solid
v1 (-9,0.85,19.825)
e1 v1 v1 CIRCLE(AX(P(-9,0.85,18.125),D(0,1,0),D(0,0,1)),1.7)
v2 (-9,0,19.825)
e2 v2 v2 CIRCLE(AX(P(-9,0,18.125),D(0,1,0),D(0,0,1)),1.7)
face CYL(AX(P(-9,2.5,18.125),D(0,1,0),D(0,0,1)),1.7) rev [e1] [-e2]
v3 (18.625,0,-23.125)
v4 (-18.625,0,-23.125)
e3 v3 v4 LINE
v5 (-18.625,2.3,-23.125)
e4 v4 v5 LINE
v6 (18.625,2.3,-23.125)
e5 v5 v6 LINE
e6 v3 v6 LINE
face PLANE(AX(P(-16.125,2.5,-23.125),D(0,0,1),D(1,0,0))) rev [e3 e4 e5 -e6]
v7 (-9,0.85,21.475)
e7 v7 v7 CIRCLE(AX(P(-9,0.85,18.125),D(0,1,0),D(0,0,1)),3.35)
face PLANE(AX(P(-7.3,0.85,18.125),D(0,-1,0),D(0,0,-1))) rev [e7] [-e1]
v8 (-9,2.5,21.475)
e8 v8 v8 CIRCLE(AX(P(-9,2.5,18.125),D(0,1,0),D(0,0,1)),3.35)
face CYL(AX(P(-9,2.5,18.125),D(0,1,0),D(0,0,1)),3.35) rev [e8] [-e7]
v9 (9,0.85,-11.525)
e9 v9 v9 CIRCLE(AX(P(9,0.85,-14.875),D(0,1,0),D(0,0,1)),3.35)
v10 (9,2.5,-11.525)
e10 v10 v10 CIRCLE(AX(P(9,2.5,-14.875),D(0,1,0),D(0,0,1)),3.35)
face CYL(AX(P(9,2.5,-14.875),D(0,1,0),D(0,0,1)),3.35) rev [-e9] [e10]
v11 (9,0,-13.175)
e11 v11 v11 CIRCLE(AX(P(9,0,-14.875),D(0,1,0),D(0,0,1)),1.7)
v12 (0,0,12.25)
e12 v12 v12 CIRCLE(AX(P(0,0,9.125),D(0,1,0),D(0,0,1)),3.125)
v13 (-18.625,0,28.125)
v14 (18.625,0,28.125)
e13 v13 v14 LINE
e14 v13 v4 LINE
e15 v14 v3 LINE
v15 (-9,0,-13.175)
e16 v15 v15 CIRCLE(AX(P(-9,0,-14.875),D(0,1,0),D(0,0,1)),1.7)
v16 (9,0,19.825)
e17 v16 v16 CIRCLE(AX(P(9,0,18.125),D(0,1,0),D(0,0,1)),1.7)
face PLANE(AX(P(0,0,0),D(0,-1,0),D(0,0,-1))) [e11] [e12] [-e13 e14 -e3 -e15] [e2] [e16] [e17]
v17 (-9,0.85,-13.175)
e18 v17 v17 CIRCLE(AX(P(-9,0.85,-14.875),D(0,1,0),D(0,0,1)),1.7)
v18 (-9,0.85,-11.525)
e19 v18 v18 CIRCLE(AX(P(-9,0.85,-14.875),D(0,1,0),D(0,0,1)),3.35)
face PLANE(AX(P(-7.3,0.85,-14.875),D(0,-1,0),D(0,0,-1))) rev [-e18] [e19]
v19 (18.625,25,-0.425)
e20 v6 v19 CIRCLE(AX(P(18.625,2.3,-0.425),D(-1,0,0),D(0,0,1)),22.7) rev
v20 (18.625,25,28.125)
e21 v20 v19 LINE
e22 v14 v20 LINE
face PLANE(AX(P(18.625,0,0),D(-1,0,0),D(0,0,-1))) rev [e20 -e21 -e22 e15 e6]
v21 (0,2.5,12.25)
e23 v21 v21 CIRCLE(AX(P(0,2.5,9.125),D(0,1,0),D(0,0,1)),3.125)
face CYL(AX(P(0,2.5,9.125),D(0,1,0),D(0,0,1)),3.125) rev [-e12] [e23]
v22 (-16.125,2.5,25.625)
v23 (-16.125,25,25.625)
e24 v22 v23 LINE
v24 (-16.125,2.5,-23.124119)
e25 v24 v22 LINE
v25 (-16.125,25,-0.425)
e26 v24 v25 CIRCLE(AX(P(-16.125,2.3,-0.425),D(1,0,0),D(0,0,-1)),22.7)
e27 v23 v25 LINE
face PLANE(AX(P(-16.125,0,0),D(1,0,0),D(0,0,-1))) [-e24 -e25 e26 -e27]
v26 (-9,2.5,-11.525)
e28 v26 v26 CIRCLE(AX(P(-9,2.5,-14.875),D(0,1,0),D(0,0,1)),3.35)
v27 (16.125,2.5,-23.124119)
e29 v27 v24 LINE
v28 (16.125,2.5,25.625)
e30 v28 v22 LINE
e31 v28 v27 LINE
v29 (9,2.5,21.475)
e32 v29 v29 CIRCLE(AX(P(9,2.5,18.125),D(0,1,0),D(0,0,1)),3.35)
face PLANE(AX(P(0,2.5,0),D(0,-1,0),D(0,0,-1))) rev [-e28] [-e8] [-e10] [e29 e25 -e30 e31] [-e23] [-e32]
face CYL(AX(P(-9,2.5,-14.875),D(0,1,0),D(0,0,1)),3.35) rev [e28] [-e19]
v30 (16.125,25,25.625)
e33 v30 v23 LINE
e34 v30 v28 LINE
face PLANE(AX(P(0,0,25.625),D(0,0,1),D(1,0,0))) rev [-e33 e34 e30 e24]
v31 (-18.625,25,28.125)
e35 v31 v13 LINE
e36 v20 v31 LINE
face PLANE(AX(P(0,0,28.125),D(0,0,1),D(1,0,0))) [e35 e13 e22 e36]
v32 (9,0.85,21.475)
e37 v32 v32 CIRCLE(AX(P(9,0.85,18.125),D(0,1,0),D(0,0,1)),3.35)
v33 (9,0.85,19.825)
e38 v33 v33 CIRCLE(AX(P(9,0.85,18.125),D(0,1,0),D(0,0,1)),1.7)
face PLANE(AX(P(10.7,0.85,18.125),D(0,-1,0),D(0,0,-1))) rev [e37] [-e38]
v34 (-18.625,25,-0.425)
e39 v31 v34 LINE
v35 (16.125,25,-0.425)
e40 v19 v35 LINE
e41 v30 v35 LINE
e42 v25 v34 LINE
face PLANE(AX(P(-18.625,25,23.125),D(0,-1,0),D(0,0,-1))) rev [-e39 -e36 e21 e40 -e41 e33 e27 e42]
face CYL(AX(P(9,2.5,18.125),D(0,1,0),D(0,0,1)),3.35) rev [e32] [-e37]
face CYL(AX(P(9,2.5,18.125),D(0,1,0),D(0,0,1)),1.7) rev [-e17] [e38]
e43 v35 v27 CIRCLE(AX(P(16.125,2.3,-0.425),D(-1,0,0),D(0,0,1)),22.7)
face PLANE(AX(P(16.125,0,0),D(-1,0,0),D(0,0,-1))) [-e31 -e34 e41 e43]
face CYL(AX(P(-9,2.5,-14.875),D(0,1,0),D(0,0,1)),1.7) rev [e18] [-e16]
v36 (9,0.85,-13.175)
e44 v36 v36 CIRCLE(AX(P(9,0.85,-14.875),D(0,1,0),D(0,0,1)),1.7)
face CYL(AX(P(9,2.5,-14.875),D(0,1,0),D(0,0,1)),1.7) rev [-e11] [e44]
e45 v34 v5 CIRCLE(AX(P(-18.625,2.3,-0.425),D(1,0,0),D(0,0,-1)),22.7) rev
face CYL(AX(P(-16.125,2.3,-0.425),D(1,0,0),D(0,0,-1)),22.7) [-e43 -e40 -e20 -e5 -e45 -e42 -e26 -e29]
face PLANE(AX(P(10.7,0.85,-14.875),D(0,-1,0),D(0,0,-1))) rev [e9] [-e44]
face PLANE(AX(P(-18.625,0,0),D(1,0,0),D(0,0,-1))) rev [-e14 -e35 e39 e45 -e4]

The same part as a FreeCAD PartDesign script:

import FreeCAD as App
import Part
import Sketcher

V = App.Vector


def edges_at(feature, points):
    """Names of the edges that pass closest to the given points."""
    edges = feature.Shape.Edges
    near = lambda p: min(range(len(edges)), key=lambda i: edges[i].distToShape(Part.Vertex(*p))[0])
    return sorted({f"Edge{near(p) + 1}" for p in points})

doc = App.newDocument("Part")
params = doc.addObject("Spreadsheet::Sheet", "Params")
for row, (alias, value) in enumerate([
    ("sketch1_width", "32.25 mm"),
    ("sketch1_height", "46.25 mm"),
    ("pad1_length", "2.5 mm"),
    ("sketch2_diameter", "3.4 mm"),
    ("hole_diameter", "3.4 mm"),
    ("hole_cbore_diameter", "6.7 mm"),
    ("hole_cbore_depth", "1.65 mm"),
    ("sketch3_diameter", "6.25 mm"),
    ("hole2_diameter", "6.25 mm"),
    ("sketch4_width", "25 mm"),
    ("sketch4_height", "46.25 mm"),
    ("pad2_length", "2.5 mm"),
    ("fillet_radius", "22.7 mm"),
    ("sketch5_height", "25 mm"),
    ("sketch5_width", "2.5 mm"),
    ("sketch5_height2", "22.5 mm"),
    ("sketch5_width2", "37.25 mm"),
    ("pad3_length", "2.5 mm"),
    ("sketch6_height", "25 mm"),
    ("sketch6_width", "37.25 mm"),
    ("pad4_length", "2.5 mm"),
], start=1):
    params.set(f"A{row}", alias)
    params.set(f"B{row}", "=" + value)
    params.setAlias(f"B{row}", alias)

body = doc.addObject("PartDesign::Body", "Body")

# Sketch on XZ plane
sketch1 = body.newObject("Sketcher::SketchObject", "Sketch")
sketch1.AttachmentSupport = (doc.getObject("XZ_Plane"), [""])
sketch1.MapMode = "FlatFace"
sketch1.addGeometry(Part.LineSegment(V(-16, -23, 0), V(-16, 23, 0)), False)
sketch1.addGeometry(Part.LineSegment(V(-16, 23, 0), V(16, 23, 0)), False)
sketch1.addGeometry(Part.LineSegment(V(16, 23, 0), V(16, -23, 0)), False)
sketch1.addGeometry(Part.LineSegment(V(16, -23, 0), V(-16, -23, 0)), False)
sketch1.addConstraint(Sketcher.Constraint("Coincident", 0, 2, 1, 1))
sketch1.addConstraint(Sketcher.Constraint("Coincident", 1, 2, 2, 1))
sketch1.addConstraint(Sketcher.Constraint("Coincident", 2, 2, 3, 1))
sketch1.addConstraint(Sketcher.Constraint("Coincident", 3, 2, 0, 1))
sketch1.addConstraint(Sketcher.Constraint("Vertical", 0))
sketch1.addConstraint(Sketcher.Constraint("Horizontal", 1))
sketch1.addConstraint(Sketcher.Constraint("Vertical", 2))
sketch1.addConstraint(Sketcher.Constraint("Horizontal", 3))
sketch1.addConstraint(Sketcher.Constraint("Symmetric", 0, 2, 2, 2, -1, 1))
sketch1.addConstraint(Sketcher.Constraint("DistanceX", 1, 1, 1, 2, 32.25))
sketch1.addConstraint(Sketcher.Constraint("DistanceY", 0, 1, 0, 2, 46.25))
sketch1.setExpression("Constraints[9]", "Params.sketch1_width")
sketch1.setExpression("Constraints[10]", "Params.sketch1_height")
pad1 = body.newObject("PartDesign::Pad", "Pad")
pad1.Profile = sketch1
pad1.setExpression("Length", "Params.pad1_length")
pad1.Reversed = True

# Sketch on XZ plane
sketch2 = body.newObject("Sketcher::SketchObject", "Sketch001")
sketch2.AttachmentSupport = (doc.getObject("XZ_Plane"), [""])
sketch2.MapMode = "FlatFace"
sketch2.AttachmentOffset = App.Placement(V(0, 0, -2.5), App.Rotation())
sketch2.addGeometry(Part.Circle(V(-9, -14.9, 0), V(0, 0, 1), 1.7), False)
sketch2.addGeometry(Part.Circle(V(9, -14.9, 0), V(0, 0, 1), 1.7), False)
sketch2.addGeometry(Part.Circle(V(9, 18.1, 0), V(0, 0, 1), 1.7), False)
sketch2.addGeometry(Part.Circle(V(-9, 18.1, 0), V(0, 0, 1), 1.7), False)
sketch2.addConstraint(Sketcher.Constraint("Equal", 0, 1))
sketch2.addConstraint(Sketcher.Constraint("Equal", 1, 2))
sketch2.addConstraint(Sketcher.Constraint("Equal", 2, 3))
sketch2.addConstraint(Sketcher.Constraint("Symmetric", 0, 3, 1, 3, -2))
sketch2.addConstraint(Sketcher.Constraint("Symmetric", 2, 3, 3, 3, -2))
sketch2.addConstraint(Sketcher.Constraint("Vertical", 1, 3, 2, 3))
sketch2.addConstraint(Sketcher.Constraint("Diameter", 0, 3.4))
sketch2.addConstraint(Sketcher.Constraint("DistanceX", 0, 3, -1, 1, 9.0))
sketch2.addConstraint(Sketcher.Constraint("DistanceY", 1, 3, 2, 3, 33.0))
sketch2.addConstraint(Sketcher.Constraint("DistanceY", 0, 3, -1, 1, 14.875))
sketch2.setExpression("Constraints[6]", "Params.sketch2_diameter")
doc.recompute()
hole = body.newObject("PartDesign::Hole", "Hole")
hole.Profile = sketch2
hole.ThreadType = "None"
hole.setExpression("Diameter", "Params.hole_diameter")
hole.DepthType = "ThroughAll"
hole.HoleCutType = "Counterbore"
hole.setExpression("HoleCutDiameter", "Params.hole_cbore_diameter")
hole.setExpression("HoleCutDepth", "Params.hole_cbore_depth")
hole.Reversed = True

# Sketch on XZ plane
sketch3 = body.newObject("Sketcher::SketchObject", "Sketch002")
sketch3.AttachmentSupport = (doc.getObject("XZ_Plane"), [""])
sketch3.MapMode = "FlatFace"
sketch3.AttachmentOffset = App.Placement(V(0, 0, -2.5), App.Rotation())
sketch3.addGeometry(Part.Circle(V(0, 9.1, 0), V(0, 0, 1), 3.1), False)
sketch3.addConstraint(Sketcher.Constraint("PointOnObject", 0, 3, -2))
sketch3.addConstraint(Sketcher.Constraint("Diameter", 0, 6.25))
sketch3.addConstraint(Sketcher.Constraint("DistanceY", -1, 1, 0, 3, 9.125))
sketch3.setExpression("Constraints[1]", "Params.sketch3_diameter")
doc.recompute()
hole2 = body.newObject("PartDesign::Hole", "Hole001")
hole2.Profile = sketch3
hole2.ThreadType = "None"
hole2.setExpression("Diameter", "Params.hole2_diameter")
hole2.DepthType = "ThroughAll"
hole2.Reversed = True

# Sketch on YZ plane
sketch4 = body.newObject("Sketcher::SketchObject", "Sketch003")
sketch4.AttachmentSupport = (doc.getObject("YZ_Plane"), [""])
sketch4.MapMode = "FlatFace"
sketch4.AttachmentOffset = App.Placement(V(0, 0, -16.125), App.Rotation())
sketch4.addGeometry(Part.LineSegment(V(25, -23, 0), V(0, -23, 0)), False)
sketch4.addGeometry(Part.LineSegment(V(0, -23, 0), V(0, 23, 0)), False)
sketch4.addGeometry(Part.LineSegment(V(0, 23, 0), V(25, 23, 0)), False)
sketch4.addGeometry(Part.LineSegment(V(25, 23, 0), V(25, -23, 0)), False)
sketch4.addConstraint(Sketcher.Constraint("Coincident", 0, 2, 1, 1))
sketch4.addConstraint(Sketcher.Constraint("Coincident", 1, 2, 2, 1))
sketch4.addConstraint(Sketcher.Constraint("Coincident", 2, 2, 3, 1))
sketch4.addConstraint(Sketcher.Constraint("Coincident", 3, 2, 0, 1))
sketch4.addConstraint(Sketcher.Constraint("Horizontal", 0))
sketch4.addConstraint(Sketcher.Constraint("Vertical", 1))
sketch4.addConstraint(Sketcher.Constraint("Horizontal", 2))
sketch4.addConstraint(Sketcher.Constraint("Vertical", 3))
sketch4.addConstraint(Sketcher.Constraint("Symmetric", 0, 2, 1, 2, -1, 1))
sketch4.addConstraint(Sketcher.Constraint("DistanceX", 0, 2, 0, 1, 25.0))
sketch4.addConstraint(Sketcher.Constraint("DistanceY", 1, 1, 1, 2, 46.25))
sketch4.setExpression("Constraints[9]", "Params.sketch4_width")
sketch4.setExpression("Constraints[10]", "Params.sketch4_height")
pad2 = body.newObject("PartDesign::Pad", "Pad001")
pad2.Profile = sketch4
pad2.setExpression("Length", "Params.pad2_length")
pad2.Reversed = True
doc.recompute()

mirrored = body.newObject("PartDesign::Mirrored", "Mirrored")
mirrored.Originals = [pad2]
mirrored.MirrorPlane = (doc.getObject("YZ_Plane"), [""])
body.Tip = mirrored
doc.recompute()

fillet = body.newObject("PartDesign::Fillet", "Fillet")
fillet.Base = (mirrored, edges_at(mirrored, [(-17.375, 25, -23.125)]))
fillet.setExpression("Radius", "Params.fillet_radius")

# Sketch on XY plane
sketch5 = body.newObject("Sketcher::SketchObject", "Sketch004")
sketch5.AttachmentSupport = (doc.getObject("XY_Plane"), [""])
sketch5.MapMode = "FlatFace"
sketch5.AttachmentOffset = App.Placement(V(0, 0, 23.125), App.Rotation())
sketch5.addGeometry(Part.LineSegment(V(-18.6, 0, 0), V(18.6, 0, 0)), False)
sketch5.addGeometry(Part.LineSegment(V(18.6, 0, 0), V(18.6, 25, 0)), False)
sketch5.addGeometry(Part.LineSegment(V(18.6, 25, 0), V(16.1, 25, 0)), False)
sketch5.addGeometry(Part.LineSegment(V(16.1, 25, 0), V(16.1, 2.5, 0)), False)
sketch5.addGeometry(Part.LineSegment(V(16.1, 2.5, 0), V(-16.1, 2.5, 0)), False)
sketch5.addGeometry(Part.LineSegment(V(-16.1, 2.5, 0), V(-16.1, 25, 0)), False)
sketch5.addGeometry(Part.LineSegment(V(-16.1, 25, 0), V(-18.6, 25, 0)), False)
sketch5.addGeometry(Part.LineSegment(V(-18.6, 25, 0), V(-18.6, 0, 0)), False)
sketch5.addConstraint(Sketcher.Constraint("Coincident", 0, 2, 1, 1))
sketch5.addConstraint(Sketcher.Constraint("Coincident", 1, 2, 2, 1))
sketch5.addConstraint(Sketcher.Constraint("Coincident", 2, 2, 3, 1))
sketch5.addConstraint(Sketcher.Constraint("Coincident", 3, 2, 4, 1))
sketch5.addConstraint(Sketcher.Constraint("Coincident", 4, 2, 5, 1))
sketch5.addConstraint(Sketcher.Constraint("Coincident", 5, 2, 6, 1))
sketch5.addConstraint(Sketcher.Constraint("Coincident", 6, 2, 7, 1))
sketch5.addConstraint(Sketcher.Constraint("Coincident", 7, 2, 0, 1))
sketch5.addConstraint(Sketcher.Constraint("Horizontal", 0))
sketch5.addConstraint(Sketcher.Constraint("Vertical", 1))
sketch5.addConstraint(Sketcher.Constraint("Horizontal", 2))
sketch5.addConstraint(Sketcher.Constraint("Vertical", 3))
sketch5.addConstraint(Sketcher.Constraint("Horizontal", 4))
sketch5.addConstraint(Sketcher.Constraint("Vertical", 5))
sketch5.addConstraint(Sketcher.Constraint("Horizontal", 6))
sketch5.addConstraint(Sketcher.Constraint("Vertical", 7))
sketch5.addConstraint(Sketcher.Constraint("Symmetric", 0, 2, 7, 2, -1, 1))
sketch5.addConstraint(Sketcher.Constraint("Symmetric", 2, 2, 5, 2, -2))
sketch5.addConstraint(Sketcher.Constraint("DistanceY", 1, 1, 1, 2, 25.0))
sketch5.addConstraint(Sketcher.Constraint("DistanceX", 2, 2, 2, 1, 2.5))
sketch5.addConstraint(Sketcher.Constraint("DistanceY", 3, 2, 3, 1, 22.5))
sketch5.addConstraint(Sketcher.Constraint("DistanceX", 0, 1, 0, 2, 37.25))
sketch5.setExpression("Constraints[18]", "Params.sketch5_height")
sketch5.setExpression("Constraints[19]", "Params.sketch5_width")
sketch5.setExpression("Constraints[20]", "Params.sketch5_height2")
sketch5.setExpression("Constraints[21]", "Params.sketch5_width2")
pad3 = body.newObject("PartDesign::Pad", "Pad002")
pad3.Profile = sketch5
pad3.setExpression("Length", "Params.pad3_length")

# Sketch on XY plane
sketch6 = body.newObject("Sketcher::SketchObject", "Sketch005")
sketch6.AttachmentSupport = (doc.getObject("XY_Plane"), [""])
sketch6.MapMode = "FlatFace"
sketch6.AttachmentOffset = App.Placement(V(0, 0, 25.625), App.Rotation())
sketch6.addGeometry(Part.LineSegment(V(-19, 25, 0), V(-19, 0, 0)), False)
sketch6.addGeometry(Part.LineSegment(V(-19, 0, 0), V(19, 0, 0)), False)
sketch6.addGeometry(Part.LineSegment(V(19, 0, 0), V(19, 25, 0)), False)
sketch6.addGeometry(Part.LineSegment(V(19, 25, 0), V(-19, 25, 0)), False)
sketch6.addConstraint(Sketcher.Constraint("Coincident", 0, 2, 1, 1))
sketch6.addConstraint(Sketcher.Constraint("Coincident", 1, 2, 2, 1))
sketch6.addConstraint(Sketcher.Constraint("Coincident", 2, 2, 3, 1))
sketch6.addConstraint(Sketcher.Constraint("Coincident", 3, 2, 0, 1))
sketch6.addConstraint(Sketcher.Constraint("Vertical", 0))
sketch6.addConstraint(Sketcher.Constraint("Horizontal", 1))
sketch6.addConstraint(Sketcher.Constraint("Vertical", 2))
sketch6.addConstraint(Sketcher.Constraint("Horizontal", 3))
sketch6.addConstraint(Sketcher.Constraint("Symmetric", 0, 2, 1, 2, -1, 1))
sketch6.addConstraint(Sketcher.Constraint("DistanceY", 0, 2, 0, 1, 25.0))
sketch6.addConstraint(Sketcher.Constraint("DistanceX", 1, 1, 1, 2, 37.25))
sketch6.setExpression("Constraints[9]", "Params.sketch6_height")
sketch6.setExpression("Constraints[10]", "Params.sketch6_width")
pad4 = body.newObject("PartDesign::Pad", "Pad003")
pad4.Profile = sketch6
pad4.setExpression("Length", "Params.pad4_length")

doc.recompute()
